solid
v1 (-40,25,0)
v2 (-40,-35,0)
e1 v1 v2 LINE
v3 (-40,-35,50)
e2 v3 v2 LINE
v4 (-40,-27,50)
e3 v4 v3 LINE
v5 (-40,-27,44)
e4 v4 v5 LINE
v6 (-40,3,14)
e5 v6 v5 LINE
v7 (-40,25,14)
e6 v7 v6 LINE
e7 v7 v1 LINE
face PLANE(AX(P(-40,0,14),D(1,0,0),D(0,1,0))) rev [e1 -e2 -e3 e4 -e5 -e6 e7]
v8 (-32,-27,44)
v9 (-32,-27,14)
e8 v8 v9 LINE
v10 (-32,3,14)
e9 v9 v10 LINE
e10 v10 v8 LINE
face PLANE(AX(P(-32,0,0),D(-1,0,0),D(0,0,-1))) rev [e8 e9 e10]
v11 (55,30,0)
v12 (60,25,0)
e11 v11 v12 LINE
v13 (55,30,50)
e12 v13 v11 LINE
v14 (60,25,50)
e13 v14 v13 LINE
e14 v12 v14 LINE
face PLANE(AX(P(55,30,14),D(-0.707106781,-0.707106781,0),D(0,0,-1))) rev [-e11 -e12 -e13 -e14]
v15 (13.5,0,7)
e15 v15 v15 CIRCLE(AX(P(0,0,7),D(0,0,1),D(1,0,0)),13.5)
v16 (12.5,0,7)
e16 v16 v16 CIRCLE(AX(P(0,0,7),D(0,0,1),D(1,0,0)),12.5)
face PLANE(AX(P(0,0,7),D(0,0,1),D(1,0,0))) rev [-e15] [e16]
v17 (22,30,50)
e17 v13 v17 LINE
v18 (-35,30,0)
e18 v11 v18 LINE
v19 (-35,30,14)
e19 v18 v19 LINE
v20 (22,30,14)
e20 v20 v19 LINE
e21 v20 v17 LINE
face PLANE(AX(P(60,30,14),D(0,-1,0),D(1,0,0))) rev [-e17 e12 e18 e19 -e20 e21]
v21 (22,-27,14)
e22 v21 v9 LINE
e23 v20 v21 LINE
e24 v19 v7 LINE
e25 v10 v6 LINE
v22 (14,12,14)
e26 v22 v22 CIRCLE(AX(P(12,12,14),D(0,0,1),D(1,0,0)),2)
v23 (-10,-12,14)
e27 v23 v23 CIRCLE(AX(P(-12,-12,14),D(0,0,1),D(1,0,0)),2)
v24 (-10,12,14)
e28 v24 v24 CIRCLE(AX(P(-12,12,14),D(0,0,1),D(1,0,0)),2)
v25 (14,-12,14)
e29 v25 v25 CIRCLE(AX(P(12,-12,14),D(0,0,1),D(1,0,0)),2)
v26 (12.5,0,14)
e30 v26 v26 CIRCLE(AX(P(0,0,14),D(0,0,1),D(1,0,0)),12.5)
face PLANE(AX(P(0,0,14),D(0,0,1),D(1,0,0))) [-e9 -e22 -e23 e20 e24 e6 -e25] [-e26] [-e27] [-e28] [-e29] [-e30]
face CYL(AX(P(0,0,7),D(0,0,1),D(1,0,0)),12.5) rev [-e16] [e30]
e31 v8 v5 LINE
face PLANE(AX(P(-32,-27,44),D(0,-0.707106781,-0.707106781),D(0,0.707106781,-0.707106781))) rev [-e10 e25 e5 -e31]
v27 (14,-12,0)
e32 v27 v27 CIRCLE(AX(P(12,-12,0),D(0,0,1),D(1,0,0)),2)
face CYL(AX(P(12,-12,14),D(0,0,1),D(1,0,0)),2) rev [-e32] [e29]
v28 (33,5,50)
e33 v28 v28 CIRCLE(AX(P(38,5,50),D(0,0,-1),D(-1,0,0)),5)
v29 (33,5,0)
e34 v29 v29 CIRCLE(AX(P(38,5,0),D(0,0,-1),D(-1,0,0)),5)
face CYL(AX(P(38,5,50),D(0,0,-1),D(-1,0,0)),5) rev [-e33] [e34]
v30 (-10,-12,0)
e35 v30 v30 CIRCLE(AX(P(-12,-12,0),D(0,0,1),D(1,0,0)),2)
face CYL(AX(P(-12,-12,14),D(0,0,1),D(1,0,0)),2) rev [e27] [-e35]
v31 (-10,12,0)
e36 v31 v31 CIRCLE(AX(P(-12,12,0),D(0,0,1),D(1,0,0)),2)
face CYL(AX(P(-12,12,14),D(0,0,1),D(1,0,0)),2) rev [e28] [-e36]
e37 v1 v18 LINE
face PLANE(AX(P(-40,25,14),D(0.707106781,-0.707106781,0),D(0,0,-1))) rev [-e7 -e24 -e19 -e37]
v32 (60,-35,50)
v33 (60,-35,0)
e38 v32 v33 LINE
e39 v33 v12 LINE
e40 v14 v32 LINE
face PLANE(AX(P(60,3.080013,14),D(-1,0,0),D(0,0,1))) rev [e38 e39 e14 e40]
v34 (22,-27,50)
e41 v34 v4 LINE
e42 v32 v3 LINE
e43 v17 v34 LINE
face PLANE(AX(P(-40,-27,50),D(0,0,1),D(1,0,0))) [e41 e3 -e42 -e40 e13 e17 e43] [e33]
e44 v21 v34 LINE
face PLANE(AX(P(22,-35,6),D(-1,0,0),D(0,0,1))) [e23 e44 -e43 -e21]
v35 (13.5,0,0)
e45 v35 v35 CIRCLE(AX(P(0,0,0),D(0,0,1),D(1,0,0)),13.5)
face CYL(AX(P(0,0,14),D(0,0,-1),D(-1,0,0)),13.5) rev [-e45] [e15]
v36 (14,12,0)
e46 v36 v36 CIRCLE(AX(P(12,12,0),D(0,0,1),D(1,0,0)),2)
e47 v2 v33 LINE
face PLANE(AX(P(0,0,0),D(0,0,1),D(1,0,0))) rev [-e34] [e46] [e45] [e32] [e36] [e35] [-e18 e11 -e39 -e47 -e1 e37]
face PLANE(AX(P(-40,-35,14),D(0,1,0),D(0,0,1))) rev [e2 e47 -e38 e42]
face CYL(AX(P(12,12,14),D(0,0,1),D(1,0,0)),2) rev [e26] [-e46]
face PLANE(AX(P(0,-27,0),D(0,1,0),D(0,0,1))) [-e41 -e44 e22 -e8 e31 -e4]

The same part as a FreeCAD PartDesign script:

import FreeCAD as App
import Part
import Sketcher


def edges_at(feature, points):
    """Names of the edges that pass closest to the given points."""
    edges = feature.Shape.Edges
    near = lambda p: min(range(len(edges)), key=lambda i: edges[i].distToShape(Part.Vertex(*p))[0])
    return sorted({f"Edge{near(p) + 1}" for p in points})

doc = App.newDocument("Part")
body = doc.addObject("PartDesign::Body", "Body")

# Sketch on XY plane
sketch1 = doc.addObject("Sketcher::SketchObject", "Sketch")
body.addObject(sketch1)
sketch1.AttachmentSupport = (doc.XY_Plane, [""])
sketch1.MapMode = "FlatFace"
sketch1.addGeometry([
    Part.LineSegment(App.Vector(-40, -35, 0), App.Vector(60, -35, 0)),  # 0
    Part.LineSegment(App.Vector(60, -35, 0), App.Vector(60, 30, 0)),  # 1
    Part.LineSegment(App.Vector(60, 30, 0), App.Vector(-40, 30, 0)),  # 2
    Part.LineSegment(App.Vector(-40, 30, 0), App.Vector(-40, -35, 0)),  # 3
    Part.Circle(App.Vector(0, 0, 0), App.Vector(0, 0, 1), 14),  # 4
], False)
sketch1.addConstraint([
    Sketcher.Constraint("Coincident", 0, 2, 1, 1),
    Sketcher.Constraint("Coincident", 1, 2, 2, 1),
    Sketcher.Constraint("Coincident", 2, 2, 3, 1),
    Sketcher.Constraint("Coincident", 3, 2, 0, 1),
    Sketcher.Constraint("Horizontal", 0),
    Sketcher.Constraint("Vertical", 1),
    Sketcher.Constraint("Horizontal", 2),
    Sketcher.Constraint("Vertical", 3),
    Sketcher.Constraint("Coincident", 4, 3, -1, 1),
    Sketcher.Constraint("Diameter", 4, 27.0),
    Sketcher.Constraint("DistanceX", 0, 1, 0, 2, 100.0),
    Sketcher.Constraint("DistanceY", 1, 1, 1, 2, 65.0),
    Sketcher.Constraint("DistanceX", -1, 1, 0, 2, 60.0),
    Sketcher.Constraint("DistanceY", 0, 2, -1, 1, 35.0),
])
pad1 = doc.addObject("PartDesign::Pad", "Pad")
body.addObject(pad1)
pad1.Profile = sketch1
pad1.Length = 14

# Sketch on XY plane
sketch2 = doc.addObject("Sketcher::SketchObject", "Sketch001")
body.addObject(sketch2)
sketch2.AttachmentSupport = (doc.XY_Plane, [""])
sketch2.MapMode = "FlatFace"
sketch2.AttachmentOffset = App.Placement(App.Vector(0, 0, 7), App.Rotation())
sketch2.addGeometry([
    Part.Circle(App.Vector(0, 0, 0), App.Vector(0, 0, 1), 14),
    Part.Circle(App.Vector(0, 0, 0), App.Vector(0, 0, 1), 12),
], False)
sketch2.addConstraint([
    Sketcher.Constraint("Coincident", 0, 3, -1, 1),
    Sketcher.Constraint("Coincident", 1, 3, -1, 1),
    Sketcher.Constraint("Diameter", 0, 27.0),
    Sketcher.Constraint("Diameter", 1, 25.0),
])
pad2 = doc.addObject("PartDesign::Pad", "Pad001")
body.addObject(pad2)
pad2.Profile = sketch2
pad2.Length = 7

# Sketch on XY plane
sketch3 = doc.addObject("Sketcher::SketchObject", "Sketch002")
body.addObject(sketch3)
sketch3.AttachmentSupport = (doc.XY_Plane, [""])
sketch3.MapMode = "FlatFace"
sketch3.AttachmentOffset = App.Placement(App.Vector(0, 0, 14), App.Rotation())
sketch3.addGeometry([
    Part.Circle(App.Vector(-12, 12, 0), App.Vector(0, 0, 1), 2),
    Part.Circle(App.Vector(12, 12, 0), App.Vector(0, 0, 1), 2),
    Part.Circle(App.Vector(12, -12, 0), App.Vector(0, 0, 1), 2),
    Part.Circle(App.Vector(-12, -12, 0), App.Vector(0, 0, 1), 2),
], False)
sketch3.addConstraint([
    Sketcher.Constraint("Equal", 0, 1),
    Sketcher.Constraint("Equal", 1, 2),
    Sketcher.Constraint("Equal", 2, 3),
    Sketcher.Constraint("Symmetric", 0, 3, 2, 3, -1, 1),
    Sketcher.Constraint("Symmetric", 1, 3, 3, 3, -1, 1),
    Sketcher.Constraint("Symmetric", 0, 3, 1, 3, -2),
    Sketcher.Constraint("Diameter", 0, 4.0),
    Sketcher.Constraint("DistanceX", 0, 3, -1, 1, 12.0),
    Sketcher.Constraint("DistanceY", -1, 1, 0, 3, 12.0),
])
doc.recompute()
hole = doc.addObject("PartDesign::Hole", "Hole")
body.addObject(hole)
hole.Profile = sketch3
hole.ThreadType = "None"
hole.Diameter = 4
hole.DepthType = "ThroughAll"

# Sketch on XZ plane
sketch4 = doc.addObject("Sketcher::SketchObject", "Sketch003")
body.addObject(sketch4)
sketch4.AttachmentSupport = (doc.XZ_Plane, [""])
sketch4.MapMode = "FlatFace"
sketch4.AttachmentOffset = App.Placement(App.Vector(0, 0, 35), App.Rotation())
sketch4.addGeometry([
    Part.LineSegment(App.Vector(-40, 50, 0), App.Vector(-40, 0, 0)),
    Part.LineSegment(App.Vector(-40, 0, 0), App.Vector(60, 0, 0)),
    Part.LineSegment(App.Vector(60, 0, 0), App.Vector(60, 50, 0)),
    Part.LineSegment(App.Vector(60, 50, 0), App.Vector(-40, 50, 0)),
], False)
sketch4.addConstraint([
    Sketcher.Constraint("Coincident", 0, 2, 1, 1),
    Sketcher.Constraint("Coincident", 1, 2, 2, 1),
    Sketcher.Constraint("Coincident", 2, 2, 3, 1),
    Sketcher.Constraint("Coincident", 3, 2, 0, 1),
    Sketcher.Constraint("Vertical", 0),
    Sketcher.Constraint("Horizontal", 1),
    Sketcher.Constraint("Vertical", 2),
    Sketcher.Constraint("Horizontal", 3),
    Sketcher.Constraint("PointOnObject", 0, 2, -1),
    Sketcher.Constraint("DistanceX", 1, 1, 1, 2, 100.0),
    Sketcher.Constraint("DistanceY", 0, 2, 0, 1, 50.0),
    Sketcher.Constraint("DistanceX", 0, 2, -1, 1, 40.0),
])
pad3 = doc.addObject("PartDesign::Pad", "Pad002")
body.addObject(pad3)
pad3.Profile = sketch4
pad3.Length = 8
pad3.Reversed = True

# Sketch on YZ plane
sketch5 = doc.addObject("Sketcher::SketchObject", "Sketch004")
body.addObject(sketch5)
sketch5.AttachmentSupport = (doc.YZ_Plane, [""])
sketch5.MapMode = "FlatFace"
sketch5.AttachmentOffset = App.Placement(App.Vector(0, 0, 60), App.Rotation())
sketch5.addGeometry([
    Part.LineSegment(App.Vector(3, 14, 0), App.Vector(-27, 44, 0)),
    Part.LineSegment(App.Vector(-27, 44, 0), App.Vector(-27, 14, 0)),
    Part.LineSegment(App.Vector(-27, 14, 0), App.Vector(3, 14, 0)),
], False)
sketch5.addConstraint([
    Sketcher.Constraint("Coincident", 0, 2, 1, 1),
    Sketcher.Constraint("Coincident", 1, 2, 2, 1),
    Sketcher.Constraint("Coincident", 2, 2, 0, 1),
    Sketcher.Constraint("Vertical", 1),
    Sketcher.Constraint("Horizontal", 2),
    Sketcher.Constraint("Equal", 2, 1),
    Sketcher.Constraint("DistanceX", 2, 1, 2, 2, 30.0),
    Sketcher.Constraint("DistanceX", 0, 2, -1, 1, 27.0),
    Sketcher.Constraint("DistanceY", -1, 1, 0, 2, 44.0),
])
pad4 = doc.addObject("PartDesign::Pad", "Pad003")
body.addObject(pad4)
pad4.Profile = sketch5
pad4.Length = 8
pad4.Reversed = True
doc.recompute()

datumplane = doc.addObject("PartDesign::Plane", "DatumPlane")
body.addObject(datumplane)
datumplane.AttachmentSupport = (doc.YZ_Plane, [""])
datumplane.MapMode = "FlatFace"
datumplane.AttachmentOffset = App.Placement(App.Vector(0, 0, 10), App.Rotation())
mirrored = doc.addObject("PartDesign::Mirrored", "Mirrored")
body.addObject(mirrored)
mirrored.Originals = [pad4]
mirrored.MirrorPlane = (datumplane, [""])
body.Tip = mirrored
doc.recompute()

chamfer = doc.addObject("PartDesign::Chamfer", "Chamfer")
body.addObject(chamfer)
chamfer.Base = (mirrored, edges_at(mirrored, [(-40, 30, 7)]))
chamfer.Size = 5

# Sketch on XY plane
sketch6 = doc.addObject("Sketcher::SketchObject", "Sketch005")
body.addObject(sketch6)
sketch6.AttachmentSupport = (doc.XY_Plane, [""])
sketch6.MapMode = "FlatFace"
sketch6.AttachmentOffset = App.Placement(App.Vector(0, 0, 50), App.Rotation())
sketch6.addGeometry([
    Part.LineSegment(App.Vector(22, 30, 0), App.Vector(22, -35, 0)),
    Part.LineSegment(App.Vector(22, -35, 0), App.Vector(60, -35, 0)),
    Part.LineSegment(App.Vector(60, -35, 0), App.Vector(60, 30, 0)),
    Part.LineSegment(App.Vector(60, 30, 0), App.Vector(22, 30, 0)),
], False)
sketch6.addConstraint([
    Sketcher.Constraint("Coincident", 0, 2, 1, 1),
    Sketcher.Constraint("Coincident", 1, 2, 2, 1),
    Sketcher.Constraint("Coincident", 2, 2, 3, 1),
    Sketcher.Constraint("Coincident", 3, 2, 0, 1),
    Sketcher.Constraint("Vertical", 0),
    Sketcher.Constraint("Horizontal", 1),
    Sketcher.Constraint("Vertical", 2),
    Sketcher.Constraint("Horizontal", 3),
    Sketcher.Constraint("DistanceX", 1, 1, 1, 2, 38.0),
    Sketcher.Constraint("DistanceY", 0, 2, 0, 1, 65.0),
    Sketcher.Constraint("DistanceX", -1, 1, 0, 2, 22.0),
    Sketcher.Constraint("DistanceY", 0, 2, -1, 1, 35.0),
])
pad5 = doc.addObject("PartDesign::Pad", "Pad004")
body.addObject(pad5)
pad5.Profile = sketch6
pad5.Length = 44
pad5.Reversed = True

# Sketch on XY plane
sketch7 = doc.addObject("Sketcher::SketchObject", "Sketch006")
body.addObject(sketch7)
sketch7.AttachmentSupport = (doc.XY_Plane, [""])
sketch7.MapMode = "FlatFace"
sketch7.addGeometry(Part.Circle(App.Vector(38, 5, 0), App.Vector(0, 0, 1), 5), False)
sketch7.addConstraint([
    Sketcher.Constraint("Diameter", 0, 10.0),
    Sketcher.Constraint("DistanceX", -1, 1, 0, 3, 38.0),
    Sketcher.Constraint("DistanceY", -1, 1, 0, 3, 5.0),
])
pocket1 = doc.addObject("PartDesign::Pocket", "Pocket")
body.addObject(pocket1)
pocket1.Profile = sketch7
pocket1.Type = "ThroughAll"
pocket1.Reversed = True
doc.recompute()

chamfer2 = doc.addObject("PartDesign::Chamfer", "Chamfer001")
body.addObject(chamfer2)
chamfer2.Base = (pocket1, edges_at(pocket1, [(60, 30, 25)]))
chamfer2.Size = 5

doc.recompute()
